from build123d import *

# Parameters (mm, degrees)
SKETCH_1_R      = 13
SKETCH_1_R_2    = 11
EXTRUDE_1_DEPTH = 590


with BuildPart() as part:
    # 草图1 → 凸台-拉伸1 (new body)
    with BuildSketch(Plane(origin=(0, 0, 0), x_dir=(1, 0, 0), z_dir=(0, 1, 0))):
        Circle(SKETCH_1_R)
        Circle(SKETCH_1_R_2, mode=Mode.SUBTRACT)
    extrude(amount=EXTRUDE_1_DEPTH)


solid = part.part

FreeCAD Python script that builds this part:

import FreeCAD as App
import Part
import Sketcher

V = App.Vector

doc = App.newDocument("Part")
body = doc.addObject("PartDesign::Body", "Body")

# Sketch on XZ plane
sketch1 = doc.addObject("Sketcher::SketchObject", "Sketch")
body.addObject(sketch1)
sketch1.AttachmentSupport = (doc.XZ_Plane, [""])
sketch1.MapMode = "FlatFace"
sketch1.addGeometry([
    Part.Circle(V(0, 0, 0), V(0, 0, 1), 13),
    Part.Circle(V(0, 0, 0), V(0, 0, 1), 11),
], False)
sketch1.addConstraint([
    Sketcher.Constraint("Coincident", 0, 3, -1, 1),
    Sketcher.Constraint("Coincident", 1, 3, -1, 1),
    Sketcher.Constraint("Diameter", 0, 26.0),
    Sketcher.Constraint("Diameter", 1, 22.0),
])
pad1 = doc.addObject("PartDesign::Pad", "Pad")
body.addObject(pad1)
pad1.Profile = sketch1
pad1.Length = 590
pad1.Reversed = True

doc.recompute()
